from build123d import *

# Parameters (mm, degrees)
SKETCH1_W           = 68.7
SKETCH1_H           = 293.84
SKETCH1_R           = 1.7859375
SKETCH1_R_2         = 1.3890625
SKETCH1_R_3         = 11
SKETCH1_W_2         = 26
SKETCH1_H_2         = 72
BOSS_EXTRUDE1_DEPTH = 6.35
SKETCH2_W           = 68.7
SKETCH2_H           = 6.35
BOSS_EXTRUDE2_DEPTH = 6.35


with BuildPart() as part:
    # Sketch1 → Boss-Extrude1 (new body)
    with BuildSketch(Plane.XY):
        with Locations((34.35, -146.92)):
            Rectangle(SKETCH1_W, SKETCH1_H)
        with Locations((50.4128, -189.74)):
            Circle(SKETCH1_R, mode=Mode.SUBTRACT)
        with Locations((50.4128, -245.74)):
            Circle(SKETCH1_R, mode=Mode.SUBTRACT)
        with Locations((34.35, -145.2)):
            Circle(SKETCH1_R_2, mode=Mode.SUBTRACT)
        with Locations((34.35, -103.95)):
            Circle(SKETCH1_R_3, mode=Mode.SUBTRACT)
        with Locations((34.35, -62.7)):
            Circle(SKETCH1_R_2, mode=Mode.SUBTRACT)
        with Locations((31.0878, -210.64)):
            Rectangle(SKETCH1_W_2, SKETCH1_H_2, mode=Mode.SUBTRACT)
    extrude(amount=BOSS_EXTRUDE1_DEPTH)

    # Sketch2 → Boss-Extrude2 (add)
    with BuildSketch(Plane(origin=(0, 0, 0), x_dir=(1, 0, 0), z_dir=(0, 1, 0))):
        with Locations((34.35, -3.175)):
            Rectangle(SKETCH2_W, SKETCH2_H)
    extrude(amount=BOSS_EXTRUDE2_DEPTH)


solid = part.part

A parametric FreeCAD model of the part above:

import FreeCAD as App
import Part
import Sketcher

V = App.Vector


def add_polygon(sketch, points):
    """Adds a closed chain of lines whose ends are joined by coincident constraints."""
    first, n = sketch.GeometryCount, len(points)
    for a, b in zip(points, points[1:] + points[:1]):
        sketch.addGeometry(Part.LineSegment(App.Vector(*a, 0), App.Vector(*b, 0)), False)
    for i in range(n):
        sketch.addConstraint(Sketcher.Constraint("Coincident", first + i, 2, first + (i + 1) % n, 1))

doc = App.newDocument("Part")
body = doc.addObject("PartDesign::Body", "Body")

# Sketch on XY plane
sketch1 = body.newObject("Sketcher::SketchObject", "Sketch")
sketch1.AttachmentSupport = (doc.getObject("XY_Plane"), [""])
sketch1.MapMode = "FlatFace"
add_polygon(sketch1, [(0, 0), (0, -293.8), (68.7, -293.8), (68.7, 0)])  # lines 0-3
add_polygon(sketch1, [(44.1, -246.6), (18.1, -246.6), (18.1, -174.6), (44.1, -174.6)])  # lines 4-7
sketch1.addGeometry(Part.Circle(V(50.4, -245.7, 0), V(0, 0, 1), 1.8), False)  # 8
sketch1.addGeometry(Part.Circle(V(50.4, -189.7, 0), V(0, 0, 1), 1.8), False)  # 9
sketch1.addGeometry(Part.Circle(V(34.4, -145.2, 0), V(0, 0, 1), 1.4), False)  # 10
sketch1.addGeometry(Part.Circle(V(34.4, -104, 0), V(0, 0, 1), 11), False)  # 11
sketch1.addGeometry(Part.Circle(V(34.4, -62.7, 0), V(0, 0, 1), 1.4), False)  # 12
sketch1.addConstraint([
    Sketcher.Constraint("Vertical", 0),
    Sketcher.Constraint("Horizontal", 1),
    Sketcher.Constraint("Vertical", 2),
    Sketcher.Constraint("Horizontal", 3),
    Sketcher.Constraint("Horizontal", 4),
    Sketcher.Constraint("Vertical", 5),
    Sketcher.Constraint("Horizontal", 6),
    Sketcher.Constraint("Vertical", 7),
    Sketcher.Constraint("Coincident", 3, 2, -1, 1),
    Sketcher.Constraint("Equal", 8, 9),
    Sketcher.Constraint("Equal", 10, 12),
    Sketcher.Constraint("Vertical", 8, 3, 9, 3),
    Sketcher.Constraint("Vertical", 10, 3, 11, 3),
    Sketcher.Constraint("Vertical", 11, 3, 12, 3),
    Sketcher.Constraint("Diameter", 11, 22.0),
    Sketcher.Constraint("DistanceX", 4, 2, 4, 1, 26.0),
    Sketcher.Constraint("DistanceY", 5, 1, 5, 2, 72.0),
    Sketcher.Constraint("DistanceX", 1, 1, 1, 2, 68.7),
    Sketcher.Constraint("DistanceY", 8, 3, 9, 3, 56.0),
    Sketcher.Constraint("DistanceY", 0, 2, 0, 1, 293.84),
    Sketcher.Constraint("DistanceY", 10, 3, -1, 1, 145.2),
    Sketcher.Constraint("DistanceY", 12, 3, -1, 1, 62.7),
    Sketcher.Constraint("DistanceY", 0, 2, 8, 3, 48.1),
    Sketcher.Constraint("DistanceY", 4, 2, 8, 3, 0.9),
    Sketcher.Constraint("DistanceX", -1, 1, 10, 3, 34.35),
    Sketcher.Constraint("DistanceY", 11, 3, -1, 1, 103.95),
    Sketcher.Constraint("Diameter", 8, 3.571875),
    Sketcher.Constraint("Diameter", 10, 2.778125),
    Sketcher.Constraint("DistanceX", 4, 2, 8, 3, 32.325),
    Sketcher.Constraint("DistanceX", -1, 1, 8, 3, 50.4128),
])
pad1 = body.newObject("PartDesign::Pad", "Pad")
pad1.Profile = sketch1
pad1.Length = 6.35

# Sketch on XZ plane
sketch2 = body.newObject("Sketcher::SketchObject", "Sketch001")
sketch2.AttachmentSupport = (doc.getObject("XZ_Plane"), [""])
sketch2.MapMode = "FlatFace"
add_polygon(sketch2, [(0, 0), (0, 6), (69, 6), (69, 0)])  # lines 0-3
sketch2.addConstraint([
    Sketcher.Constraint("Vertical", 0),
    Sketcher.Constraint("Horizontal", 1),
    Sketcher.Constraint("Vertical", 2),
    Sketcher.Constraint("Horizontal", 3),
    Sketcher.Constraint("Coincident", 3, 2, -1, 1),
    Sketcher.Constraint("DistanceX", 1, 1, 1, 2, 68.7),
    Sketcher.Constraint("DistanceY", 0, 1, 0, 2, 6.35),
])
pad2 = body.newObject("PartDesign::Pad", "Pad001")
pad2.Profile = sketch2
pad2.Length = 6.35
pad2.Reversed = True

doc.recompute()
